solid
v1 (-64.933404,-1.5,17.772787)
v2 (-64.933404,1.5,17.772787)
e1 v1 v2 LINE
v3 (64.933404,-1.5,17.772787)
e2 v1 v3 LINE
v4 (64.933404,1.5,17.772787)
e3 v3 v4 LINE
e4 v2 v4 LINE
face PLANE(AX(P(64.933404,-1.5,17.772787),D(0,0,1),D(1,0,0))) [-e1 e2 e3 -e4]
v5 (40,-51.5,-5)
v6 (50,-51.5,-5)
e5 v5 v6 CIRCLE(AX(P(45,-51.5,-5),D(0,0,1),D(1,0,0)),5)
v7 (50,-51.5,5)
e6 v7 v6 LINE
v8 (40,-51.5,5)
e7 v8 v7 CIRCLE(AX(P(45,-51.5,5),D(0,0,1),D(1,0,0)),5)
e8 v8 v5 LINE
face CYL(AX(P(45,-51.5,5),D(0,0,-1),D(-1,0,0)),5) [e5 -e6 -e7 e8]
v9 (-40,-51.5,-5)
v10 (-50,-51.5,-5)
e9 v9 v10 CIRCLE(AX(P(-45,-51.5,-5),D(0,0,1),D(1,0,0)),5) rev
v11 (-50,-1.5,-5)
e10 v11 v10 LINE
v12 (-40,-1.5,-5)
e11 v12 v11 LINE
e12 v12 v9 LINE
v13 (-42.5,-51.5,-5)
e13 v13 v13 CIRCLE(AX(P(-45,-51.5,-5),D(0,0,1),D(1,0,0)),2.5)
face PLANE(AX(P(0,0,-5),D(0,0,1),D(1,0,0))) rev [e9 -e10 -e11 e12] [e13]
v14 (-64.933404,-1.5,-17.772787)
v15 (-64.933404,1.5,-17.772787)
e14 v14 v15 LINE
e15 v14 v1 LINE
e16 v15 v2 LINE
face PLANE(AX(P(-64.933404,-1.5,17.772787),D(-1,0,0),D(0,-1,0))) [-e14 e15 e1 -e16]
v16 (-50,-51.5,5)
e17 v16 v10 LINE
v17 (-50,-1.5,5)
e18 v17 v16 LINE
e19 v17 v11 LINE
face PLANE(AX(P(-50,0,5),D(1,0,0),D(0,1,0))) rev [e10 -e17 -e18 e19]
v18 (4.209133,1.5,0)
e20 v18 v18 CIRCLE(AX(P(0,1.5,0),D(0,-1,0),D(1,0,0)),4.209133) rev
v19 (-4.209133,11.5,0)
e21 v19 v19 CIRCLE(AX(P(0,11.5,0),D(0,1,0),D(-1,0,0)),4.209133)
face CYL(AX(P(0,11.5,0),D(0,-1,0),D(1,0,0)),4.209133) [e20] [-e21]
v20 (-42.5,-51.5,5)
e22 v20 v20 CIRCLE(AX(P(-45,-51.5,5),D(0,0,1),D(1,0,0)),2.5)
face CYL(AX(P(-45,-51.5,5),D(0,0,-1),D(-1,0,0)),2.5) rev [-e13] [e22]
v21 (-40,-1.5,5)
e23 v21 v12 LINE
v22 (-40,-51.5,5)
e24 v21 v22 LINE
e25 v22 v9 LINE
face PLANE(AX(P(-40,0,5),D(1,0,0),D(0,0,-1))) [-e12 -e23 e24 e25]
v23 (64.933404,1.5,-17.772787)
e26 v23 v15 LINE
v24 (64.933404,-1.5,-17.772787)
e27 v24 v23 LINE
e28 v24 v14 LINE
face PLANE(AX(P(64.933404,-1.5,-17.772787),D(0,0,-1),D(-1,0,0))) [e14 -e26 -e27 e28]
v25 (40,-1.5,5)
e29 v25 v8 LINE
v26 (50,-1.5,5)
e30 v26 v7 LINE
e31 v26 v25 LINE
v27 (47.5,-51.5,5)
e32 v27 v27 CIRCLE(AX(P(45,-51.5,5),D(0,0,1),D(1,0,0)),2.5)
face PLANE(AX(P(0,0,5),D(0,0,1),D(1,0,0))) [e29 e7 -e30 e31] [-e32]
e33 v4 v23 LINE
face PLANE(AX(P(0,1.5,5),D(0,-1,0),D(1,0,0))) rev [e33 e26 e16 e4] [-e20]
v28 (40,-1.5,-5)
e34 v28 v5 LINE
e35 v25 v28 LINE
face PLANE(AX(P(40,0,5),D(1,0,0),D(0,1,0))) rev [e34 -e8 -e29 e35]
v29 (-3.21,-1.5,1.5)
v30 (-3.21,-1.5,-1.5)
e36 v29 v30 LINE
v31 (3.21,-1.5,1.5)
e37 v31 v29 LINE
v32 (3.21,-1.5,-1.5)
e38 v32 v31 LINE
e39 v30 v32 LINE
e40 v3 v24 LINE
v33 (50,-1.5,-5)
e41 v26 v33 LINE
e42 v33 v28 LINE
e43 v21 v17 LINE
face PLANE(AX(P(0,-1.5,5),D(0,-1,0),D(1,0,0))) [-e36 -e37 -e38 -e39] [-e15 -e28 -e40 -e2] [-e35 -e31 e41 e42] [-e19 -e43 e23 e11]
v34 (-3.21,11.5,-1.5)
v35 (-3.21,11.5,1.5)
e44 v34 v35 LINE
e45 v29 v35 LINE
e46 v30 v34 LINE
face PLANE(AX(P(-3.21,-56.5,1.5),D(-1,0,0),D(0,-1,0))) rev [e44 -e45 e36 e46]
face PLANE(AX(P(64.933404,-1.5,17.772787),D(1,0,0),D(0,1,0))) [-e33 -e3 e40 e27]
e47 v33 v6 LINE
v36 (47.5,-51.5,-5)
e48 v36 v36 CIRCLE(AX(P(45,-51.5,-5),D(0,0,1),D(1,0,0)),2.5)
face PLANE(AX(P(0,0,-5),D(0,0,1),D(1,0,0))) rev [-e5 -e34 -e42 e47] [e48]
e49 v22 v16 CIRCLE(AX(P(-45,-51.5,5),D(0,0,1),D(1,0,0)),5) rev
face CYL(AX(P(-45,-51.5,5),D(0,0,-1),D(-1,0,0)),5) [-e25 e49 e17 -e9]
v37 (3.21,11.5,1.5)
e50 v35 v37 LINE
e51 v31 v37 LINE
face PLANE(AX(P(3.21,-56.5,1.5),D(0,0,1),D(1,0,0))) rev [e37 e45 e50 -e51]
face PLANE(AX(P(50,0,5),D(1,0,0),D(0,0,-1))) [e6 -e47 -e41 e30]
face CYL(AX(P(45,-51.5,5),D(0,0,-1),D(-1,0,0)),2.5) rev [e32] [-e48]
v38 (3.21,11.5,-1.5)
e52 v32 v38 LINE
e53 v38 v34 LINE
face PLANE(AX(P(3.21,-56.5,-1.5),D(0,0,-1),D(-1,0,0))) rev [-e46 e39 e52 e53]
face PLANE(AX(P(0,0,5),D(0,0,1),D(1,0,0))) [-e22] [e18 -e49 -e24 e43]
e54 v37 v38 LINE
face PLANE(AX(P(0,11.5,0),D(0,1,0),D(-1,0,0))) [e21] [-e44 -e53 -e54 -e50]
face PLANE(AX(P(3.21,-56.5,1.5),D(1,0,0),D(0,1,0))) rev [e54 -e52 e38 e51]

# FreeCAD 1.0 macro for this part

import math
import FreeCAD as App
import Part
import Sketcher
from FreeCAD import Vector
Q = App.Units.Quantity


def add_polygon(sketch, points):
    """Adds a closed chain of lines whose ends are joined by coincident constraints."""
    first, n = sketch.GeometryCount, len(points)
    for a, b in zip(points, points[1:] + points[:1]):
        sketch.addGeometry(Part.LineSegment(App.Vector(*a, 0), App.Vector(*b, 0)), False)
    for i in range(n):
        sketch.addConstraint(Sketcher.Constraint("Coincident", first + i, 2, first + (i + 1) % n, 1))

doc = App.newDocument("Part")
body = doc.addObject("PartDesign::Body", "Body")

# Sketch on XY plane
sketch1 = body.newObject("Sketcher::SketchObject", "Sketch")
sketch1.AttachmentSupport = (doc.getObject("XY_Plane"), [""])
sketch1.MapMode = "FlatFace"
sketch1.addGeometry(Part.LineSegment(Vector(50, -1.5, 0), Vector(55, -1.5, 0)), False)
sketch1.addGeometry(Part.LineSegment(Vector(55, -1.5, 0), Vector(55, 1.5, 0)), False)
sketch1.addGeometry(Part.LineSegment(Vector(55, 1.5, 0), Vector(-55, 1.5, 0)), False)
sketch1.addGeometry(Part.LineSegment(Vector(-55, 1.5, 0), Vector(-55, -1.5, 0)), False)
sketch1.addGeometry(Part.LineSegment(Vector(-55, -1.5, 0), Vector(-50, -1.5, 0)), False)
sketch1.addGeometry(Part.LineSegment(Vector(-50, -1.5, 0), Vector(-50, -51.5, 0)), False)
sketch1.addGeometry(Part.ArcOfCircle(Part.Circle(Vector(-45, -51.5, 0), Vector(0, 0, 1), 5), math.radians(180), math.radians(360)), False)
sketch1.addGeometry(Part.LineSegment(Vector(-40, -51.5, 0), Vector(-40, -1.5, 0)), False)
sketch1.addGeometry(Part.LineSegment(Vector(-40, -1.5, 0), Vector(40, -1.5, 0)), False)
sketch1.addGeometry(Part.LineSegment(Vector(40, -1.5, 0), Vector(40, -51.5, 0)), False)
sketch1.addGeometry(Part.ArcOfCircle(Part.Circle(Vector(45, -51.5, 0), Vector(0, 0, 1), 5), math.radians(180), math.radians(360)), False)
sketch1.addGeometry(Part.LineSegment(Vector(50, -51.5, 0), Vector(50, -1.5, 0)), False)
sketch1.addGeometry(Part.Circle(Vector(-45, -51.5, 0), Vector(0, 0, 1), 2.5), False)
sketch1.addGeometry(Part.Circle(Vector(45, -51.5, 0), Vector(0, 0, 1), 2.5), False)
sketch1.addConstraint(Sketcher.Constraint("Coincident", 0, 2, 1, 1))
sketch1.addConstraint(Sketcher.Constraint("Coincident", 1, 2, 2, 1))
sketch1.addConstraint(Sketcher.Constraint("Coincident", 2, 2, 3, 1))
sketch1.addConstraint(Sketcher.Constraint("Coincident", 3, 2, 4, 1))
sketch1.addConstraint(Sketcher.Constraint("Coincident", 4, 2, 5, 1))
sketch1.addConstraint(Sketcher.Constraint("Tangent", 5, 2, 6, 1))
sketch1.addConstraint(Sketcher.Constraint("Tangent", 6, 2, 7, 1))
sketch1.addConstraint(Sketcher.Constraint("Coincident", 7, 2, 8, 1))
sketch1.addConstraint(Sketcher.Constraint("Coincident", 8, 2, 9, 1))
sketch1.addConstraint(Sketcher.Constraint("Tangent", 9, 2, 10, 1))
sketch1.addConstraint(Sketcher.Constraint("Tangent", 10, 2, 11, 1))
sketch1.addConstraint(Sketcher.Constraint("Coincident", 11, 2, 0, 1))
sketch1.addConstraint(Sketcher.Constraint("Horizontal", 0))
sketch1.addConstraint(Sketcher.Constraint("Vertical", 1))
sketch1.addConstraint(Sketcher.Constraint("Horizontal", 2))
sketch1.addConstraint(Sketcher.Constraint("Vertical", 3))
sketch1.addConstraint(Sketcher.Constraint("Horizontal", 4))
sketch1.addConstraint(Sketcher.Constraint("Vertical", 5))
sketch1.addConstraint(Sketcher.Constraint("Vertical", 7))
sketch1.addConstraint(Sketcher.Constraint("Horizontal", 8))
sketch1.addConstraint(Sketcher.Constraint("Vertical", 9))
sketch1.addConstraint(Sketcher.Constraint("Vertical", 11))
sketch1.addConstraint(Sketcher.Constraint("Coincident", 12, 3, 6, 3))
sketch1.addConstraint(Sketcher.Constraint("Coincident", 13, 3, 10, 3))
sketch1.addConstraint(Sketcher.Constraint("Equal", 6, 10))
sketch1.addConstraint(Sketcher.Constraint("Equal", 12, 13))
sketch1.addConstraint(Sketcher.Constraint("Symmetric", 0, 2, 2, 2, -1, 1))
sketch1.addConstraint(Sketcher.Constraint("Symmetric", 6, 3, 10, 3, -2))
sketch1.addConstraint(Sketcher.Constraint("Horizontal", 0, 2, 3, 2))
sketch1.addConstraint(Sketcher.Constraint("Horizontal", 4, 2, 7, 2))
sketch1.addConstraint(Sketcher.Constraint("Diameter", 12, Q("5 mm")))
sketch1.addConstraint(Sketcher.Constraint("Radius", 6, Q("5 mm")))
sketch1.addConstraint(Sketcher.Constraint("DistanceX", 0, 1, 0, 2, Q("5 mm")))
sketch1.addConstraint(Sketcher.Constraint("DistanceX", 2, 2, 2, 1, Q("110 mm")))
sketch1.addConstraint(Sketcher.Constraint("DistanceY", 1, 1, 1, 2, Q("3 mm")))
sketch1.addConstraint(Sketcher.Constraint("DistanceY", 5, 2, 5, 1, Q("50 mm")))
pad1 = body.newObject("PartDesign::Pad", "Pad")
pad1.Profile = sketch1
pad1.Length = 10
pad1.Midplane = True

# Sketch on XZ plane
sketch2 = body.newObject("Sketcher::SketchObject", "Sketch001")
sketch2.AttachmentSupport = (doc.getObject("XZ_Plane"), [""])
sketch2.MapMode = "FlatFace"
sketch2.AttachmentOffset = App.Placement(Vector(0, 0, -1.5), App.Rotation())
add_polygon(sketch2, [(-64.933404, -17.772787), (-64.933404, 17.772787), (64.933404, 17.772787), (64.933404, -17.772787)])  # lines 0-3
sketch2.addConstraint(Sketcher.Constraint("Vertical", 0))
sketch2.addConstraint(Sketcher.Constraint("Horizontal", 1))
sketch2.addConstraint(Sketcher.Constraint("Vertical", 2))
sketch2.addConstraint(Sketcher.Constraint("Horizontal", 3))
sketch2.addConstraint(Sketcher.Constraint("Symmetric", 0, 2, 2, 2, -1, 1))
sketch2.addConstraint(Sketcher.Constraint("DistanceX", 1, 1, 1, 2, Q("129.866809 mm")))
sketch2.addConstraint(Sketcher.Constraint("DistanceY", 0, 1, 0, 2, Q("35.545574 mm")))
pad2 = body.newObject("PartDesign::Pad", "Pad001")
pad2.Profile = sketch2
pad2.Length = 3

# Sketch on XZ plane
sketch3 = body.newObject("Sketcher::SketchObject", "Sketch002")
sketch3.AttachmentSupport = (doc.getObject("XZ_Plane"), [""])
sketch3.MapMode = "FlatFace"
sketch3.AttachmentOffset = App.Placement(Vector(0, 0, -1.5), App.Rotation())
add_polygon(sketch3, [(-3.21, -1.5), (-3.21, 1.5), (3.21, 1.5), (3.21, -1.5)])  # lines 0-3
sketch3.addConstraint(Sketcher.Constraint("Vertical", 0))
sketch3.addConstraint(Sketcher.Constraint("Horizontal", 1))
sketch3.addConstraint(Sketcher.Constraint("Vertical", 2))
sketch3.addConstraint(Sketcher.Constraint("Horizontal", 3))
sketch3.addConstraint(Sketcher.Constraint("Symmetric", 0, 2, 2, 2, -1, 1))
sketch3.addConstraint(Sketcher.Constraint("DistanceY", 0, 1, 0, 2, Q("3 mm")))
sketch3.addConstraint(Sketcher.Constraint("DistanceX", 1, 1, 1, 2, Q("6.42 mm")))
pocket1 = body.newObject("PartDesign::Pocket", "Pocket")
pocket1.Profile = sketch3
pocket1.Type = "ThroughAll"
pocket1.Reversed = True

# Sketch on XZ plane
sketch4 = body.newObject("Sketcher::SketchObject", "Sketch003")
sketch4.AttachmentSupport = (doc.getObject("XZ_Plane"), [""])
sketch4.MapMode = "FlatFace"
sketch4.AttachmentOffset = App.Placement(Vector(0, 0, -1.5), App.Rotation())
sketch4.addGeometry(Part.Circle(Vector(0, 0, 0), Vector(0, 0, 1), 4.209133), False)  # 0
add_polygon(sketch4, [(3.21, 1.5), (-3.21, 1.5), (-3.21, -1.5), (3.21, -1.5)])  # lines 1-4
sketch4.addConstraint(Sketcher.Constraint("Horizontal", 1))
sketch4.addConstraint(Sketcher.Constraint("Vertical", 2))
sketch4.addConstraint(Sketcher.Constraint("Horizontal", 3))
sketch4.addConstraint(Sketcher.Constraint("Vertical", 4))
sketch4.addConstraint(Sketcher.Constraint("Coincident", 0, 3, -1, 1))
sketch4.addConstraint(Sketcher.Constraint("Symmetric", 1, 2, 3, 2, -1, 1))
sketch4.addConstraint(Sketcher.Constraint("DistanceY", 2, 2, 2, 1, Q("3 mm")))
sketch4.addConstraint(Sketcher.Constraint("DistanceX", 1, 2, 1, 1, Q("6.42 mm")))
sketch4.addConstraint(Sketcher.Constraint("Diameter", 0, Q("8.418266 mm")))
pad3 = body.newObject("PartDesign::Pad", "Pad002")
pad3.Profile = sketch4
pad3.Length = 10
pad3.Reversed = True

doc.recompute()
